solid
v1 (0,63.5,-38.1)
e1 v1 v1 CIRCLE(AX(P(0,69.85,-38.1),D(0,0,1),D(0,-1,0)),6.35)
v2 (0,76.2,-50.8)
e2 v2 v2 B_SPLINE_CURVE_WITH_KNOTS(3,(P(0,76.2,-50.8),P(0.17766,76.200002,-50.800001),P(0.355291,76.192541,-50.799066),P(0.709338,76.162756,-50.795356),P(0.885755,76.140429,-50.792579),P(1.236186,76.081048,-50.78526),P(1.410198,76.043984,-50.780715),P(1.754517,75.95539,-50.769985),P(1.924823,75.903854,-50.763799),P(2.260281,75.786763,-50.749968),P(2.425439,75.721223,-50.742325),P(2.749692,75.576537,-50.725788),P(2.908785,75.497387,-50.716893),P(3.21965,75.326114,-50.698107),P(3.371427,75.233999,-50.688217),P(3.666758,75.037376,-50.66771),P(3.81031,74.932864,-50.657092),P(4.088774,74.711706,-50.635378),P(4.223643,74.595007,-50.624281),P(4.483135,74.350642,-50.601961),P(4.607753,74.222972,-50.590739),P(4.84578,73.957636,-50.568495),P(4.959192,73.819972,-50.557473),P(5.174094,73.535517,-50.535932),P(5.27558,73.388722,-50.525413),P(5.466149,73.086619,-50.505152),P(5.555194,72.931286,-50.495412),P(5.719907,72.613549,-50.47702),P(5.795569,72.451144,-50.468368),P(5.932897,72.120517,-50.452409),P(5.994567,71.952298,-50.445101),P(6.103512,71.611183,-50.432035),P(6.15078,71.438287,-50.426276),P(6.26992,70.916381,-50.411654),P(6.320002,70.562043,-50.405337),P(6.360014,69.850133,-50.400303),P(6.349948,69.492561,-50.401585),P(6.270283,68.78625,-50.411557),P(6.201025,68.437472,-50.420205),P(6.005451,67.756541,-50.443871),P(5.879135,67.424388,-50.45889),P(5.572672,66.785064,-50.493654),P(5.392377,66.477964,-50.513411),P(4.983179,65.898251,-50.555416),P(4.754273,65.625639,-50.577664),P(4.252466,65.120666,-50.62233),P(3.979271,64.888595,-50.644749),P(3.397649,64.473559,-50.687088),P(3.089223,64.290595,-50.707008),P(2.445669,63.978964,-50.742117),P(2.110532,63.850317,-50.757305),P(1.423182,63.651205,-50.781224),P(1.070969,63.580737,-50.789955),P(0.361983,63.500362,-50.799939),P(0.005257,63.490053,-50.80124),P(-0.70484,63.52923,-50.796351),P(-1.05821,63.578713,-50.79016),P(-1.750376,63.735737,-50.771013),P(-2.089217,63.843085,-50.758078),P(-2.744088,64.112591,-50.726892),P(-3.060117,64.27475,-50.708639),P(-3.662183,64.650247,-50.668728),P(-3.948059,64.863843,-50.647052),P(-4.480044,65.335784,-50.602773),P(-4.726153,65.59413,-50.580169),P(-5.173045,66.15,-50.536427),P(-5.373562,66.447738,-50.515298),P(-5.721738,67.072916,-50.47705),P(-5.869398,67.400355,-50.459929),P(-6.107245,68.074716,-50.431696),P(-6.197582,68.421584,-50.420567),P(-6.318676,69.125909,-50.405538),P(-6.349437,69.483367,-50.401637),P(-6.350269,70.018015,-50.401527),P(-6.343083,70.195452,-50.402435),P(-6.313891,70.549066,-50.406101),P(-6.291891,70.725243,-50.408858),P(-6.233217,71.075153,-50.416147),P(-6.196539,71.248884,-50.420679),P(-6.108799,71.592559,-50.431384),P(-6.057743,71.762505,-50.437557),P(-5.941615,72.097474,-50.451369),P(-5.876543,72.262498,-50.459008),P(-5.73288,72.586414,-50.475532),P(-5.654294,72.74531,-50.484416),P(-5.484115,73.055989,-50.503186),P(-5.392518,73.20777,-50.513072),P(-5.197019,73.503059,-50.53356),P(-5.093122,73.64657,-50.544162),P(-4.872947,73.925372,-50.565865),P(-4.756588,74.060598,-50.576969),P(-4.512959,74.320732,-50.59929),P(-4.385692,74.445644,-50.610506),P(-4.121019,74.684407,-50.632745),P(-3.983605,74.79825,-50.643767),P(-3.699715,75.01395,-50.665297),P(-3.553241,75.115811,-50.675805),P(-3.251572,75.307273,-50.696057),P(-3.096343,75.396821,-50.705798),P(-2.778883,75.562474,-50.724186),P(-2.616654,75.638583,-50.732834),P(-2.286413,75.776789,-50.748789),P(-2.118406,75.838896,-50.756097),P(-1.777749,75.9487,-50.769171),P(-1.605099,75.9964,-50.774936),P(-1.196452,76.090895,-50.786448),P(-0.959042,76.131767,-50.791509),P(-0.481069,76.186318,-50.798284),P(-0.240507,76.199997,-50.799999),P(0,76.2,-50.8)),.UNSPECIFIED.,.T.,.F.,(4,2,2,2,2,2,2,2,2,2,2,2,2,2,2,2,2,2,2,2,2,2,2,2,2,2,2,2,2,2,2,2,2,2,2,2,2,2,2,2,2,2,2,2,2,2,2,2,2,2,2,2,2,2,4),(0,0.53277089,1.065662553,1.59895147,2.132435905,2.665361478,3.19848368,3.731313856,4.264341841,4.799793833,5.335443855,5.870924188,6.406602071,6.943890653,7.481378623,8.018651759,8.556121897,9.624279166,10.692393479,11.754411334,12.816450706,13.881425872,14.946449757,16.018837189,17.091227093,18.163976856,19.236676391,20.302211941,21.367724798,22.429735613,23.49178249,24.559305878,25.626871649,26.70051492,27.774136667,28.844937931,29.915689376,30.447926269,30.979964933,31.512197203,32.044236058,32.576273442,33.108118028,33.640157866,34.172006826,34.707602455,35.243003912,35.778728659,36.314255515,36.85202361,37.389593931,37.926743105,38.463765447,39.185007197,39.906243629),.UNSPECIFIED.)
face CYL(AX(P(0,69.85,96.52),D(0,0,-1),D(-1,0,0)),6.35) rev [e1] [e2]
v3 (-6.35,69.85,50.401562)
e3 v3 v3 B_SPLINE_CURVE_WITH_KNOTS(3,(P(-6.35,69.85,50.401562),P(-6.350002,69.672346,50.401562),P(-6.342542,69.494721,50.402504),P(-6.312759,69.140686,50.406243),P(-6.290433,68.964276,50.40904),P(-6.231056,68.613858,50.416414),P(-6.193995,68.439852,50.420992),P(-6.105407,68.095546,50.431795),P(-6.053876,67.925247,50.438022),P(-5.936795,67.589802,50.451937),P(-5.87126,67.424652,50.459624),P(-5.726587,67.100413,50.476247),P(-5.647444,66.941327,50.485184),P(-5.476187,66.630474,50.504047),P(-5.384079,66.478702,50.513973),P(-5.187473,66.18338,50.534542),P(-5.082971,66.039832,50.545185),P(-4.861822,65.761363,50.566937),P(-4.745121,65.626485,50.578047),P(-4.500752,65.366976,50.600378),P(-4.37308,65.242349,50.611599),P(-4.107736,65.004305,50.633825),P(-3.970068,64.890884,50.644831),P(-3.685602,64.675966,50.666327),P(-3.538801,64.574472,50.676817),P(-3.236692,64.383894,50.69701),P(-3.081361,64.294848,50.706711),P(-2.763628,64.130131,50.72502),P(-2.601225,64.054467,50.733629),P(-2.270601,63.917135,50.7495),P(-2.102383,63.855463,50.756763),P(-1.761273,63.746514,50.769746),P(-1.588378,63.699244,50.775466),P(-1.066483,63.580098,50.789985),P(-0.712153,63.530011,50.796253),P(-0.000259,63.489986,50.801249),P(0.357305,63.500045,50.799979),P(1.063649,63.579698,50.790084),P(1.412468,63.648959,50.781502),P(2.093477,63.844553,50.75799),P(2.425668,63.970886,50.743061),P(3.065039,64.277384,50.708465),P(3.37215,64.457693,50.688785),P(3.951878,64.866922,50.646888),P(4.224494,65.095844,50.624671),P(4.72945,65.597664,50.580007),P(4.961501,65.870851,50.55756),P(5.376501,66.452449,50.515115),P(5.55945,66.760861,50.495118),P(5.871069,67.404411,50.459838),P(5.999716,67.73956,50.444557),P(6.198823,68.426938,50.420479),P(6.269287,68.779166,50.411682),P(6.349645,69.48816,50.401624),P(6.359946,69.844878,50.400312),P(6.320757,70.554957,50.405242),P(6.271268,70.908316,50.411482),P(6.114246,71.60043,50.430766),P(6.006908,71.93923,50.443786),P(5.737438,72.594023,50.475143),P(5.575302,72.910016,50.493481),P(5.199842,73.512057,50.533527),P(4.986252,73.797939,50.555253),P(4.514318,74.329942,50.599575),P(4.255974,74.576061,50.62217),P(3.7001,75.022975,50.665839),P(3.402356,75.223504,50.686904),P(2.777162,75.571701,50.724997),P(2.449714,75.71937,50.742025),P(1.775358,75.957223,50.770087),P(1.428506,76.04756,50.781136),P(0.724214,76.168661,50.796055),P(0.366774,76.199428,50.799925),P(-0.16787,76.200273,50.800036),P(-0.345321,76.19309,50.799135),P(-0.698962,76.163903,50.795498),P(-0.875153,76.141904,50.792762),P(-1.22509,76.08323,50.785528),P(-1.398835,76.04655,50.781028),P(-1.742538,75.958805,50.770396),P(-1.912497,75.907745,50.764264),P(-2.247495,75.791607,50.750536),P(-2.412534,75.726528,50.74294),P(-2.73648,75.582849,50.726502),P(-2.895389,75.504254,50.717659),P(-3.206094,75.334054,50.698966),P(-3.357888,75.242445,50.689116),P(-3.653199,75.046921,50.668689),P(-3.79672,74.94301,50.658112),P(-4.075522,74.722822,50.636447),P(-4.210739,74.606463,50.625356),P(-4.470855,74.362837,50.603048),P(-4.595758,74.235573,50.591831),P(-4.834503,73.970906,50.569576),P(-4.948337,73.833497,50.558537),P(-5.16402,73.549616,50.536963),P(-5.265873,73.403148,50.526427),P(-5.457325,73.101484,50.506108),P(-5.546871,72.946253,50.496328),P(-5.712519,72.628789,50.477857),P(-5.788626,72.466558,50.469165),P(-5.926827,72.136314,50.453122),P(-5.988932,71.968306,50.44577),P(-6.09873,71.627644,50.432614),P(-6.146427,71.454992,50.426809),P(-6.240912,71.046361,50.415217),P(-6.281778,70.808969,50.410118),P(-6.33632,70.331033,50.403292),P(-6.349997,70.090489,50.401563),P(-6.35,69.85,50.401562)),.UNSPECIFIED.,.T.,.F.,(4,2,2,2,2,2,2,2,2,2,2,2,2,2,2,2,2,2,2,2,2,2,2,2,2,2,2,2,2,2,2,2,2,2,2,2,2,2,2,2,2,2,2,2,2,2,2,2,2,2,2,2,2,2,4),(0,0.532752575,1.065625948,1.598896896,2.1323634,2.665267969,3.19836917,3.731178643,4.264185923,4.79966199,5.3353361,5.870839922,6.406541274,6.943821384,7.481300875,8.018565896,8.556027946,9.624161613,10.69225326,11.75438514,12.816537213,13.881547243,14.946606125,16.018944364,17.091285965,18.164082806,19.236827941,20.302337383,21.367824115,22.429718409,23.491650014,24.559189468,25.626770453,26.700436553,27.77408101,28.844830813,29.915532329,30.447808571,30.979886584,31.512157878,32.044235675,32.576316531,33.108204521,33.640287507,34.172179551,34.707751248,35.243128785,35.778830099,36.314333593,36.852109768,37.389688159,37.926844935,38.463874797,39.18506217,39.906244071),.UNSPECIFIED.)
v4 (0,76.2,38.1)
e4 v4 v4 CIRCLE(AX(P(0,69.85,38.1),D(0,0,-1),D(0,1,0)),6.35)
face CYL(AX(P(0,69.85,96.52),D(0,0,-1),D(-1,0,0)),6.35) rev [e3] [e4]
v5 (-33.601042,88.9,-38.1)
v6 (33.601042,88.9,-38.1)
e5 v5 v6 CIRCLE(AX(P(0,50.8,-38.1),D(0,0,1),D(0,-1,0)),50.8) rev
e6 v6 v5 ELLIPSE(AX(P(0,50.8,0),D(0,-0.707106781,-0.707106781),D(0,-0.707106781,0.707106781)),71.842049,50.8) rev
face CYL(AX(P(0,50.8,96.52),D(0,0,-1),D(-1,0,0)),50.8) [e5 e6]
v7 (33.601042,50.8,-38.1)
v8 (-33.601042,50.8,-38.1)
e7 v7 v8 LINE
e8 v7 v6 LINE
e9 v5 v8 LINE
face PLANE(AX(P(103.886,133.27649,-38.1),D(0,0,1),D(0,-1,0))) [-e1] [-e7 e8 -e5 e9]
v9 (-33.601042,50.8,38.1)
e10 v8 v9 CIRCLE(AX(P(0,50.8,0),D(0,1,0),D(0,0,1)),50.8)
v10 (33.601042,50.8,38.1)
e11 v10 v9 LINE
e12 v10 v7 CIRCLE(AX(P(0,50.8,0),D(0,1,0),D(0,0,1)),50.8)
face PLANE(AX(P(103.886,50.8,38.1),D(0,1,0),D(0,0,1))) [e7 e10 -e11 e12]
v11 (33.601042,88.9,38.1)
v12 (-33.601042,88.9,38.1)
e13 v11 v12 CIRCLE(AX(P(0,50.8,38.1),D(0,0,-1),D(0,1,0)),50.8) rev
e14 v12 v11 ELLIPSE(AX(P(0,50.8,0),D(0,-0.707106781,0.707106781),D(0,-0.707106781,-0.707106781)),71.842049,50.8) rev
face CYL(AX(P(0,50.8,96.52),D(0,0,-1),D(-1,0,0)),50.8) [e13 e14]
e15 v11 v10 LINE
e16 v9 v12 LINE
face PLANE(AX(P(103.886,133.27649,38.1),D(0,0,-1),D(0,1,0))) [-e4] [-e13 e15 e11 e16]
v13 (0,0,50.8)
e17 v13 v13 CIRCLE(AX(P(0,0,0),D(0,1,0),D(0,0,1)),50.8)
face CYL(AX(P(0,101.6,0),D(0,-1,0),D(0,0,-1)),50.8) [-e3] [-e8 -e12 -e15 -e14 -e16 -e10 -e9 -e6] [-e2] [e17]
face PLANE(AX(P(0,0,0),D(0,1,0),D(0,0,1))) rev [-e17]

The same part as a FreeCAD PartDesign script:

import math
import FreeCAD as App
import Part
import Sketcher
Q = App.Units.Quantity

doc = App.newDocument("Part")
body = doc.addObject("PartDesign::Body", "Body")

# Sketch on XZ plane
sketch1 = body.newObject("Sketcher::SketchObject", "Sketch")
sketch1.AttachmentSupport = (doc.getObject("XZ_Plane"), [""])
sketch1.MapMode = "FlatFace"
sketch1.addGeometry(Part.Circle(App.Vector(0, 0, 0), App.Vector(0, 0, 1), 50.8), False)
sketch1.addConstraint([
    Sketcher.Constraint("Coincident", 0, 3, -1, 1),
    Sketcher.Constraint("Diameter", 0, Q("4 in")),
])
pad1 = body.newObject("PartDesign::Pad", "Pad")
pad1.Profile = sketch1
pad1.Length = Q("4 in")
pad1.Reversed = True

# Sketch on XY plane
sketch2 = body.newObject("Sketcher::SketchObject", "Sketch001")
sketch2.AttachmentSupport = (doc.getObject("XY_Plane"), [""])
sketch2.MapMode = "FlatFace"
sketch2.addGeometry([
    Part.Circle(App.Vector(0, 69.85, 0), App.Vector(0, 0, 1), 6.35),  # 0
    Part.LineSegment(App.Vector(-71.74333, 50.8, 0), App.Vector(-50.8, 50.8, 0)),  # 1
    Part.ArcOfCircle(Part.Circle(App.Vector(0, 50.8, 0), App.Vector(0, 0, 1), 50.8), math.radians(0), math.radians(180)),  # 2
    Part.LineSegment(App.Vector(50.8, 50.8, 0), App.Vector(67.42453, 50.8, 0)),  # 3
    Part.LineSegment(App.Vector(67.42453, 50.8, 0), App.Vector(67.42453, 136.31781, 0)),  # 4
    Part.LineSegment(App.Vector(67.42453, 136.31781, 0), App.Vector(-71.74333, 136.31781, 0)),  # 5
    Part.LineSegment(App.Vector(-71.74333, 136.31781, 0), App.Vector(-71.74333, 50.8, 0)),  # 6
], False)
sketch2.addConstraint([
    Sketcher.Constraint("Coincident", 1, 2, 2, 2),
    Sketcher.Constraint("Coincident", 2, 1, 3, 1),
    Sketcher.Constraint("Coincident", 3, 2, 4, 1),
    Sketcher.Constraint("Coincident", 4, 2, 5, 1),
    Sketcher.Constraint("Coincident", 5, 2, 6, 1),
    Sketcher.Constraint("Coincident", 6, 2, 1, 1),
    Sketcher.Constraint("Horizontal", 1),
    Sketcher.Constraint("Horizontal", 3),
    Sketcher.Constraint("Vertical", 4),
    Sketcher.Constraint("Horizontal", 5),
    Sketcher.Constraint("Vertical", 6),
    Sketcher.Constraint("Symmetric", 1, 2, 2, 1, -2),
    Sketcher.Constraint("PointOnObject", 0, 3, -2),
    Sketcher.Constraint("Horizontal", 2, 3, 1, 2),
    Sketcher.Constraint("Radius", 2, Q("2 in")),
    Sketcher.Constraint("Diameter", 0, Q("0.5 in")),
    Sketcher.Constraint("DistanceY", -1, 1, 2, 3, Q("2 in")),
    Sketcher.Constraint("DistanceY", -1, 1, 0, 3, Q("2.75 in")),
    Sketcher.Constraint("DistanceX", 1, 1, 1, 2, Q("20.94333 mm")),
    Sketcher.Constraint("DistanceX", 3, 1, 3, 2, Q("16.62453 mm")),
    Sketcher.Constraint("DistanceY", 4, 1, 4, 2, Q("85.51781 mm")),
])
pocket1 = body.newObject("PartDesign::Pocket", "Pocket")
pocket1.Profile = sketch2
pocket1.Type = "ThroughAll"
pocket1.Midplane = True

# Sketch on YZ plane
sketch3 = body.newObject("Sketcher::SketchObject", "Sketch002")
sketch3.AttachmentSupport = (doc.getObject("YZ_Plane"), [""])
sketch3.MapMode = "FlatFace"
sketch3.addGeometry([
    Part.LineSegment(App.Vector(133.27649, 38.1, 0), App.Vector(50.8, 38.1, 0)),
    Part.LineSegment(App.Vector(50.8, 38.1, 0), App.Vector(50.8, -38.1, 0)),
    Part.LineSegment(App.Vector(50.8, -38.1, 0), App.Vector(133.27649, -38.1, 0)),
    Part.LineSegment(App.Vector(133.27649, -38.1, 0), App.Vector(133.27649, 38.1, 0)),
], False)
sketch3.addConstraint([
    Sketcher.Constraint("Coincident", 0, 2, 1, 1),
    Sketcher.Constraint("Coincident", 1, 2, 2, 1),
    Sketcher.Constraint("Coincident", 2, 2, 3, 1),
    Sketcher.Constraint("Coincident", 3, 2, 0, 1),
    Sketcher.Constraint("Horizontal", 0),
    Sketcher.Constraint("Vertical", 1),
    Sketcher.Constraint("Horizontal", 2),
    Sketcher.Constraint("Vertical", 3),
    Sketcher.Constraint("DistanceY", 1, 2, 1, 1, Q("3 in")),
    Sketcher.Constraint("DistanceX", -1, 1, 0, 2, Q("2 in")),
    Sketcher.Constraint("DistanceY", -1, 1, 0, 2, Q("1.5 in")),
    Sketcher.Constraint("DistanceX", 0, 2, 0, 1, Q("82.47649 mm")),
])
pocket2 = body.newObject("PartDesign::Pocket", "Pocket001")
pocket2.Profile = sketch3
pocket2.Type = "ThroughAll"
pocket2.Midplane = True

doc.recompute()
